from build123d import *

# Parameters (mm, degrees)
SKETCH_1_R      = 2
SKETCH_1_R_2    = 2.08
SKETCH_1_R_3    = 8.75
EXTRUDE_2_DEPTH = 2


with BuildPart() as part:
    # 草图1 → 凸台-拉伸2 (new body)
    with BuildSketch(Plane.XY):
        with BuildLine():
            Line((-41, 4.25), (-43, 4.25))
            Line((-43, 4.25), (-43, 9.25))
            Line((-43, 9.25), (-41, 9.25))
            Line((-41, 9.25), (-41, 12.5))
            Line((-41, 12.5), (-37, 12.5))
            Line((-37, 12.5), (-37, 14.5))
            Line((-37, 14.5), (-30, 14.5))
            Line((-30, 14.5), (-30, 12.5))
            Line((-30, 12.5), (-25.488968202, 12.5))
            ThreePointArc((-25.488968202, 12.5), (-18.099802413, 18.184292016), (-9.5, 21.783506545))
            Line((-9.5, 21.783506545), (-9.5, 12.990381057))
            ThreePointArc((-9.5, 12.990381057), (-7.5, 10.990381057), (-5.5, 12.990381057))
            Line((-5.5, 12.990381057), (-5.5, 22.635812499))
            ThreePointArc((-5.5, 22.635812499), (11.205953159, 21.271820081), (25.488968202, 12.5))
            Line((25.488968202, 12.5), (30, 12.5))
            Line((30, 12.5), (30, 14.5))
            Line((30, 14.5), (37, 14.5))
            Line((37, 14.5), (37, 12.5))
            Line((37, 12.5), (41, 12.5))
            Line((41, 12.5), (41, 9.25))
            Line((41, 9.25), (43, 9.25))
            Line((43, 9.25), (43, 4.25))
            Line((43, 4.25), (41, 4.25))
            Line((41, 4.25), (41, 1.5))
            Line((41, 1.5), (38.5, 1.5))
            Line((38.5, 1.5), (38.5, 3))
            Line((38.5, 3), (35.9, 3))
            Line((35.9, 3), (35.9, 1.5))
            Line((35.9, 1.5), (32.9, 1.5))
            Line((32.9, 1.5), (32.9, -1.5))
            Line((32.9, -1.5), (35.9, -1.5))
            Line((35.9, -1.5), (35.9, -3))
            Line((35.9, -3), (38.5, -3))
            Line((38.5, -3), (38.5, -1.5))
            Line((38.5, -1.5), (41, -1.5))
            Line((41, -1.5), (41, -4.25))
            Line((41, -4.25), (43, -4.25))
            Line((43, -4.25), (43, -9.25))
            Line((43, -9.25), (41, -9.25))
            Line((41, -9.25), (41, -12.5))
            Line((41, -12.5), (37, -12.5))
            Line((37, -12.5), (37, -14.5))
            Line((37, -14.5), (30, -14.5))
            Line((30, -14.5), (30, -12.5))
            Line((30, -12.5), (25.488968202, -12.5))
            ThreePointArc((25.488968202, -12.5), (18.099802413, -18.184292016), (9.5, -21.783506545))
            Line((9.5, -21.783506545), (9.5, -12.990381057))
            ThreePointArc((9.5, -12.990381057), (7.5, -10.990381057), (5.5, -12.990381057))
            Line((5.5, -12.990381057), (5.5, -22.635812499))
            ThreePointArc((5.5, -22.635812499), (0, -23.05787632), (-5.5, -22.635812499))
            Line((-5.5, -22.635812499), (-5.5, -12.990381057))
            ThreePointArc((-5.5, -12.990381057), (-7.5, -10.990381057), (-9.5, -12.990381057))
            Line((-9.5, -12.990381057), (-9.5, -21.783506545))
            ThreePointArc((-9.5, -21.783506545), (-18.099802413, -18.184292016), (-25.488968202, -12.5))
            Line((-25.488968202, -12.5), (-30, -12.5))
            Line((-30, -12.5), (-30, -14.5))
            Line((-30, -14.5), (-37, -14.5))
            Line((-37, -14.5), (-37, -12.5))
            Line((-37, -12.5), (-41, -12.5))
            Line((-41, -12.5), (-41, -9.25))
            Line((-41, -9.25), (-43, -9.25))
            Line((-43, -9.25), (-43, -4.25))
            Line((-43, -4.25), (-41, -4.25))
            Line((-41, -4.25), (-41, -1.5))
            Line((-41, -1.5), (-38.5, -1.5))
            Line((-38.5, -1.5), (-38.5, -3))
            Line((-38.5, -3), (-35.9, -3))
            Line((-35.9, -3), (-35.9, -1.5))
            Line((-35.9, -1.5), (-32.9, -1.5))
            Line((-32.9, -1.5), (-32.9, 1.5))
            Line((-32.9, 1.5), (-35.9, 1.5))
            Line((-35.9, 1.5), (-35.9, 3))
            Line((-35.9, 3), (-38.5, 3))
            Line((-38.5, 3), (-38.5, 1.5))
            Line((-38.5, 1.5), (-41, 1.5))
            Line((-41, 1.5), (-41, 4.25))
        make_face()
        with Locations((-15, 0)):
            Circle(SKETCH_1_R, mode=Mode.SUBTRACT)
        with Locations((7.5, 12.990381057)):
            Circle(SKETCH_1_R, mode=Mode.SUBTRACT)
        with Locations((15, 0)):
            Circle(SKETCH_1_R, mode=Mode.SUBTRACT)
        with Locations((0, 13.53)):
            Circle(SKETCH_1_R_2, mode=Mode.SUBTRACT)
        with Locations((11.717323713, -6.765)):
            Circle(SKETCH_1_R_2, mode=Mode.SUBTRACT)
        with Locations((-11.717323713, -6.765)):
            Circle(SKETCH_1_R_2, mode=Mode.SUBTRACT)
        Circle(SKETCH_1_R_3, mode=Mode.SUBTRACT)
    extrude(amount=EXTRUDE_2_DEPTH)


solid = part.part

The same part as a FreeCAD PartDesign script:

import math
import FreeCAD as App
import Part
import Sketcher

V = App.Vector

doc = App.newDocument("Part")
body = doc.addObject("PartDesign::Body", "Body")

# Sketch on XY plane
sketch1 = body.newObject("Sketcher::SketchObject", "Sketch")
sketch1.AttachmentSupport = (doc.getObject("XY_Plane"), [""])
sketch1.MapMode = "FlatFace"
sketch1.addGeometry([
    Part.LineSegment(V(-43, 4.2, 0), V(-41, 4.2, 0)),  # 0
    Part.LineSegment(V(-41, 4.2, 0), V(-41, 1.5, 0)),  # 1
    Part.LineSegment(V(-41, 1.5, 0), V(-38.5, 1.5, 0)),  # 2
    Part.LineSegment(V(-38.5, 1.5, 0), V(-38.5, 3, 0)),  # 3
    Part.LineSegment(V(-38.5, 3, 0), V(-35.9, 3, 0)),  # 4
    Part.LineSegment(V(-35.9, 3, 0), V(-35.9, 1.5, 0)),  # 5
    Part.LineSegment(V(-35.9, 1.5, 0), V(-32.9, 1.5, 0)),  # 6
    Part.LineSegment(V(-32.9, 1.5, 0), V(-32.9, -1.5, 0)),  # 7
    Part.LineSegment(V(-32.9, -1.5, 0), V(-35.9, -1.5, 0)),  # 8
    Part.LineSegment(V(-35.9, -1.5, 0), V(-35.9, -3, 0)),  # 9
    Part.LineSegment(V(-35.9, -3, 0), V(-38.5, -3, 0)),  # 10
    Part.LineSegment(V(-38.5, -3, 0), V(-38.5, -1.5, 0)),  # 11
    Part.LineSegment(V(-38.5, -1.5, 0), V(-41, -1.5, 0)),  # 12
    Part.LineSegment(V(-41, -1.5, 0), V(-41, -4.2, 0)),  # 13
    Part.LineSegment(V(-41, -4.2, 0), V(-43, -4.2, 0)),  # 14
    Part.LineSegment(V(-43, -4.2, 0), V(-43, -9.2, 0)),  # 15
    Part.LineSegment(V(-43, -9.2, 0), V(-41, -9.2, 0)),  # 16
    Part.LineSegment(V(-41, -9.2, 0), V(-41, -12.5, 0)),  # 17
    Part.LineSegment(V(-41, -12.5, 0), V(-37, -12.5, 0)),  # 18
    Part.LineSegment(V(-37, -12.5, 0), V(-37, -14.5, 0)),  # 19
    Part.LineSegment(V(-37, -14.5, 0), V(-30, -14.5, 0)),  # 20
    Part.LineSegment(V(-30, -14.5, 0), V(-30, -12.5, 0)),  # 21
    Part.LineSegment(V(-30, -12.5, 0), V(-25.5, -12.5, 0)),  # 22
    Part.ArcOfCircle(Part.Circle(V(0, 13, 0), V(0, 0, 1), 36), math.radians(-135), math.radians(-105)),  # 23
    Part.LineSegment(V(-9.5, -21.8, 0), V(-9.5, -13, 0)),  # 24
    Part.ArcOfCircle(Part.Circle(V(-7.5, -13, 0), V(0, 0, 1), 2), math.radians(0), math.radians(180)),  # 25
    Part.LineSegment(V(-5.5, -13, 0), V(-5.5, -22.6, 0)),  # 26
    Part.ArcOfCircle(Part.Circle(V(0, 13, 0), V(0, 0, 1), 36), math.radians(-98.78), math.radians(-81.22)),  # 27
    Part.LineSegment(V(5.5, -22.6, 0), V(5.5, -13, 0)),  # 28
    Part.ArcOfCircle(Part.Circle(V(7.5, -13, 0), V(0, 0, 1), 2), math.radians(0), math.radians(180)),  # 29
    Part.LineSegment(V(9.5, -13, 0), V(9.5, -21.8, 0)),  # 30
    Part.ArcOfCircle(Part.Circle(V(0, 13, 0), V(0, 0, 1), 36), math.radians(-75), math.radians(-45)),  # 31
    Part.LineSegment(V(25.5, -12.5, 0), V(30, -12.5, 0)),  # 32
    Part.LineSegment(V(30, -12.5, 0), V(30, -14.5, 0)),  # 33
    Part.LineSegment(V(30, -14.5, 0), V(37, -14.5, 0)),  # 34
    Part.LineSegment(V(37, -14.5, 0), V(37, -12.5, 0)),  # 35
    Part.LineSegment(V(37, -12.5, 0), V(41, -12.5, 0)),  # 36
    Part.LineSegment(V(41, -12.5, 0), V(41, -9.2, 0)),  # 37
    Part.LineSegment(V(41, -9.2, 0), V(43, -9.2, 0)),  # 38
    Part.LineSegment(V(43, -9.2, 0), V(43, -4.2, 0)),  # 39
    Part.LineSegment(V(43, -4.2, 0), V(41, -4.2, 0)),  # 40
    Part.LineSegment(V(41, -4.2, 0), V(41, -1.5, 0)),  # 41
    Part.LineSegment(V(41, -1.5, 0), V(38.5, -1.5, 0)),  # 42
    Part.LineSegment(V(38.5, -1.5, 0), V(38.5, -3, 0)),  # 43
    Part.LineSegment(V(38.5, -3, 0), V(35.9, -3, 0)),  # 44
    Part.LineSegment(V(35.9, -3, 0), V(35.9, -1.5, 0)),  # 45
    Part.LineSegment(V(35.9, -1.5, 0), V(32.9, -1.5, 0)),  # 46
    Part.LineSegment(V(32.9, -1.5, 0), V(32.9, 1.5, 0)),  # 47
    Part.LineSegment(V(32.9, 1.5, 0), V(35.9, 1.5, 0)),  # 48
    Part.LineSegment(V(35.9, 1.5, 0), V(35.9, 3, 0)),  # 49
    Part.LineSegment(V(35.9, 3, 0), V(38.5, 3, 0)),  # 50
    Part.LineSegment(V(38.5, 3, 0), V(38.5, 1.5, 0)),  # 51
    Part.LineSegment(V(38.5, 1.5, 0), V(41, 1.5, 0)),  # 52
    Part.LineSegment(V(41, 1.5, 0), V(41, 4.2, 0)),  # 53
    Part.LineSegment(V(41, 4.2, 0), V(43, 4.2, 0)),  # 54
    Part.LineSegment(V(43, 4.2, 0), V(43, 9.2, 0)),  # 55
    Part.LineSegment(V(43, 9.2, 0), V(41, 9.2, 0)),  # 56
    Part.LineSegment(V(41, 9.2, 0), V(41, 12.5, 0)),  # 57
    Part.LineSegment(V(41, 12.5, 0), V(37, 12.5, 0)),  # 58
    Part.LineSegment(V(37, 12.5, 0), V(37, 14.5, 0)),  # 59
    Part.LineSegment(V(37, 14.5, 0), V(30, 14.5, 0)),  # 60
    Part.LineSegment(V(30, 14.5, 0), V(30, 12.5, 0)),  # 61
    Part.LineSegment(V(30, 12.5, 0), V(25.5, 12.5, 0)),  # 62
    Part.ArcOfCircle(Part.Circle(V(0, -13, 0), V(0, 0, 1), 36), math.radians(45), math.radians(99)),  # 63
    Part.LineSegment(V(-5.5, 22.6, 0), V(-5.5, 13, 0)),  # 64
    Part.ArcOfCircle(Part.Circle(V(-7.5, 13, 0), V(0, 0, 1), 2), math.radians(180), math.radians(360)),  # 65
    Part.LineSegment(V(-9.5, 13, 0), V(-9.5, 21.8, 0)),  # 66
    Part.ArcOfCircle(Part.Circle(V(0, -13, 0), V(0, 0, 1), 36), math.radians(105), math.radians(135)),  # 67
    Part.LineSegment(V(-25.5, 12.5, 0), V(-30, 12.5, 0)),  # 68
    Part.LineSegment(V(-30, 12.5, 0), V(-30, 14.5, 0)),  # 69
    Part.LineSegment(V(-30, 14.5, 0), V(-37, 14.5, 0)),  # 70
    Part.LineSegment(V(-37, 14.5, 0), V(-37, 12.5, 0)),  # 71
    Part.LineSegment(V(-37, 12.5, 0), V(-41, 12.5, 0)),  # 72
    Part.LineSegment(V(-41, 12.5, 0), V(-41, 9.2, 0)),  # 73
    Part.LineSegment(V(-41, 9.2, 0), V(-43, 9.2, 0)),  # 74
    Part.LineSegment(V(-43, 9.2, 0), V(-43, 4.2, 0)),  # 75
    Part.Circle(V(11.7, -6.8, 0), V(0, 0, 1), 2.1),  # 76
    Part.Circle(V(15, 0, 0), V(0, 0, 1), 2),  # 77
    Part.Circle(V(-11.7, -6.8, 0), V(0, 0, 1), 2.1),  # 78
    Part.Circle(V(0, 0, 0), V(0, 0, 1), 8.8),  # 79
    Part.Circle(V(-15, 0, 0), V(0, 0, 1), 2),  # 80
    Part.Circle(V(7.5, 13, 0), V(0, 0, 1), 2),  # 81
    Part.Circle(V(0, 13.5, 0), V(0, 0, 1), 2.1),  # 82
], False)
sketch1.addConstraint([
    Sketcher.Constraint("Coincident", 0, 2, 1, 1),
    Sketcher.Constraint("Coincident", 1, 2, 2, 1),
    Sketcher.Constraint("Coincident", 2, 2, 3, 1),
    Sketcher.Constraint("Coincident", 3, 2, 4, 1),
    Sketcher.Constraint("Coincident", 4, 2, 5, 1),
    Sketcher.Constraint("Coincident", 5, 2, 6, 1),
    Sketcher.Constraint("Coincident", 6, 2, 7, 1),
    Sketcher.Constraint("Coincident", 7, 2, 8, 1),
    Sketcher.Constraint("Coincident", 8, 2, 9, 1),
    Sketcher.Constraint("Coincident", 9, 2, 10, 1),
    Sketcher.Constraint("Coincident", 10, 2, 11, 1),
    Sketcher.Constraint("Coincident", 11, 2, 12, 1),
    Sketcher.Constraint("Coincident", 12, 2, 13, 1),
    Sketcher.Constraint("Coincident", 13, 2, 14, 1),
    Sketcher.Constraint("Coincident", 14, 2, 15, 1),
    Sketcher.Constraint("Coincident", 15, 2, 16, 1),
    Sketcher.Constraint("Coincident", 16, 2, 17, 1),
    Sketcher.Constraint("Coincident", 17, 2, 18, 1),
    Sketcher.Constraint("Coincident", 18, 2, 19, 1),
    Sketcher.Constraint("Coincident", 19, 2, 20, 1),
    Sketcher.Constraint("Coincident", 20, 2, 21, 1),
    Sketcher.Constraint("Coincident", 21, 2, 22, 1),
    Sketcher.Constraint("Coincident", 22, 2, 23, 1),
    Sketcher.Constraint("Coincident", 23, 2, 24, 1),
    Sketcher.Constraint("Tangent", 24, 2, 25, 2),
    Sketcher.Constraint("Tangent", 25, 1, 26, 1),
    Sketcher.Constraint("Coincident", 26, 2, 27, 1),
    Sketcher.Constraint("Coincident", 27, 2, 28, 1),
    Sketcher.Constraint("Tangent", 28, 2, 29, 2),
    Sketcher.Constraint("Tangent", 29, 1, 30, 1),
    Sketcher.Constraint("Coincident", 30, 2, 31, 1),
    Sketcher.Constraint("Coincident", 31, 2, 32, 1),
    Sketcher.Constraint("Coincident", 32, 2, 33, 1),
    Sketcher.Constraint("Coincident", 33, 2, 34, 1),
    Sketcher.Constraint("Coincident", 34, 2, 35, 1),
    Sketcher.Constraint("Coincident", 35, 2, 36, 1),
    Sketcher.Constraint("Coincident", 36, 2, 37, 1),
    Sketcher.Constraint("Coincident", 37, 2, 38, 1),
    Sketcher.Constraint("Coincident", 38, 2, 39, 1),
    Sketcher.Constraint("Coincident", 39, 2, 40, 1),
    Sketcher.Constraint("Coincident", 40, 2, 41, 1),
    Sketcher.Constraint("Coincident", 41, 2, 42, 1),
    Sketcher.Constraint("Coincident", 42, 2, 43, 1),
    Sketcher.Constraint("Coincident", 43, 2, 44, 1),
    Sketcher.Constraint("Coincident", 44, 2, 45, 1),
    Sketcher.Constraint("Coincident", 45, 2, 46, 1),
    Sketcher.Constraint("Coincident", 46, 2, 47, 1),
    Sketcher.Constraint("Coincident", 47, 2, 48, 1),
    Sketcher.Constraint("Coincident", 48, 2, 49, 1),
    Sketcher.Constraint("Coincident", 49, 2, 50, 1),
    Sketcher.Constraint("Coincident", 50, 2, 51, 1),
    Sketcher.Constraint("Coincident", 51, 2, 52, 1),
    Sketcher.Constraint("Coincident", 52, 2, 53, 1),
    Sketcher.Constraint("Coincident", 53, 2, 54, 1),
    Sketcher.Constraint("Coincident", 54, 2, 55, 1),
    Sketcher.Constraint("Coincident", 55, 2, 56, 1),
    Sketcher.Constraint("Coincident", 56, 2, 57, 1),
    Sketcher.Constraint("Coincident", 57, 2, 58, 1),
    Sketcher.Constraint("Coincident", 58, 2, 59, 1),
    Sketcher.Constraint("Coincident", 59, 2, 60, 1),
    Sketcher.Constraint("Coincident", 60, 2, 61, 1),
    Sketcher.Constraint("Coincident", 61, 2, 62, 1),
    Sketcher.Constraint("Coincident", 62, 2, 63, 1),
    Sketcher.Constraint("Coincident", 63, 2, 64, 1),
    Sketcher.Constraint("Tangent", 64, 2, 65, 2),
    Sketcher.Constraint("Tangent", 65, 1, 66, 1),
    Sketcher.Constraint("Coincident", 66, 2, 67, 1),
    Sketcher.Constraint("Coincident", 67, 2, 68, 1),
    Sketcher.Constraint("Coincident", 68, 2, 69, 1),
    Sketcher.Constraint("Coincident", 69, 2, 70, 1),
    Sketcher.Constraint("Coincident", 70, 2, 71, 1),
    Sketcher.Constraint("Coincident", 71, 2, 72, 1),
    Sketcher.Constraint("Coincident", 72, 2, 73, 1),
    Sketcher.Constraint("Coincident", 73, 2, 74, 1),
    Sketcher.Constraint("Coincident", 74, 2, 75, 1),
    Sketcher.Constraint("Coincident", 75, 2, 0, 1),
    Sketcher.Constraint("Horizontal", 0),
    Sketcher.Constraint("Vertical", 1),
    Sketcher.Constraint("Horizontal", 2),
    Sketcher.Constraint("Vertical", 3),
    Sketcher.Constraint("Horizontal", 4),
    Sketcher.Constraint("Vertical", 5),
    Sketcher.Constraint("Horizontal", 6),
    Sketcher.Constraint("Vertical", 7),
    Sketcher.Constraint("Horizontal", 8),
    Sketcher.Constraint("Vertical", 9),
    Sketcher.Constraint("Horizontal", 10),
    Sketcher.Constraint("Vertical", 11),
    Sketcher.Constraint("Horizontal", 12),
    Sketcher.Constraint("Vertical", 13),
    Sketcher.Constraint("Horizontal", 14),
    Sketcher.Constraint("Vertical", 15),
    Sketcher.Constraint("Horizontal", 16),
    Sketcher.Constraint("Vertical", 17),
    Sketcher.Constraint("Horizontal", 18),
    Sketcher.Constraint("Vertical", 19),
    Sketcher.Constraint("Horizontal", 20),
    Sketcher.Constraint("Vertical", 21),
    Sketcher.Constraint("Horizontal", 22),
    Sketcher.Constraint("Vertical", 24),
    Sketcher.Constraint("Vertical", 26),
    Sketcher.Constraint("Vertical", 28),
    Sketcher.Constraint("Vertical", 30),
    Sketcher.Constraint("Horizontal", 32),
    Sketcher.Constraint("Vertical", 33),
    Sketcher.Constraint("Horizontal", 34),
    Sketcher.Constraint("Vertical", 35),
    Sketcher.Constraint("Horizontal", 36),
    Sketcher.Constraint("Vertical", 37),
    Sketcher.Constraint("Horizontal", 38),
    Sketcher.Constraint("Vertical", 39),
    Sketcher.Constraint("Horizontal", 40),
    Sketcher.Constraint("Vertical", 41),
    Sketcher.Constraint("Horizontal", 42),
    Sketcher.Constraint("Vertical", 43),
    Sketcher.Constraint("Horizontal", 44),
    Sketcher.Constraint("Vertical", 45),
    Sketcher.Constraint("Horizontal", 46),
    Sketcher.Constraint("Vertical", 47),
    Sketcher.Constraint("Horizontal", 48),
    Sketcher.Constraint("Vertical", 49),
    Sketcher.Constraint("Horizontal", 50),
    Sketcher.Constraint("Vertical", 51),
    Sketcher.Constraint("Horizontal", 52),
    Sketcher.Constraint("Vertical", 53),
    Sketcher.Constraint("Horizontal", 54),
    Sketcher.Constraint("Vertical", 55),
    Sketcher.Constraint("Horizontal", 56),
    Sketcher.Constraint("Vertical", 57),
    Sketcher.Constraint("Horizontal", 58),
    Sketcher.Constraint("Vertical", 59),
    Sketcher.Constraint("Horizontal", 60),
    Sketcher.Constraint("Vertical", 61),
    Sketcher.Constraint("Horizontal", 62),
    Sketcher.Constraint("Vertical", 64),
    Sketcher.Constraint("Vertical", 66),
    Sketcher.Constraint("Horizontal", 68),
    Sketcher.Constraint("Vertical", 69),
    Sketcher.Constraint("Horizontal", 70),
    Sketcher.Constraint("Vertical", 71),
    Sketcher.Constraint("Horizontal", 72),
    Sketcher.Constraint("Vertical", 73),
    Sketcher.Constraint("Horizontal", 74),
    Sketcher.Constraint("Vertical", 75),
    Sketcher.Constraint("Coincident", 79, 3, -1, 1),
    Sketcher.Constraint("Coincident", 27, 3, 23, 3),
    Sketcher.Constraint("Coincident", 31, 3, 23, 3),
    Sketcher.Constraint("Coincident", 67, 3, 63, 3),
    Sketcher.Constraint("Equal", 23, 27),
    Sketcher.Constraint("Equal", 25, 29),
    Sketcher.Constraint("Equal", 27, 31),
    Sketcher.Constraint("Equal", 31, 63),
    Sketcher.Constraint("Equal", 29, 65),
    Sketcher.Constraint("Equal", 63, 67),
    Sketcher.Constraint("Equal", 65, 77),
    Sketcher.Constraint("Equal", 76, 78),
    Sketcher.Constraint("Equal", 77, 80),
    Sketcher.Constraint("Equal", 80, 81),
    Sketcher.Constraint("Equal", 78, 82),
    Sketcher.Constraint("Symmetric", 23, 3, 63, 3, -1, 1),
    Sketcher.Constraint("Symmetric", 29, 3, 65, 3, -1, 1),
    Sketcher.Constraint("Symmetric", 77, 3, 80, 3, -1, 1),
    Sketcher.Constraint("Symmetric", 25, 3, 81, 3, -1, 1),
    Sketcher.Constraint("Symmetric", 0, 2, 40, 2, -1, 1),
    Sketcher.Constraint("Symmetric", 2, 2, 42, 2, -1, 1),
    Sketcher.Constraint("Symmetric", 4, 2, 44, 2, -1, 1),
    Sketcher.Constraint("Symmetric", 6, 2, 46, 2, -1, 1),
    Sketcher.Constraint("Symmetric", 8, 2, 48, 2, -1, 1),
    Sketcher.Constraint("Symmetric", 10, 2, 50, 2, -1, 1),
    Sketcher.Constraint("Symmetric", 12, 2, 52, 2, -1, 1),
    Sketcher.Constraint("Symmetric", 14, 2, 54, 2, -1, 1),
    Sketcher.Constraint("Symmetric", 16, 2, 56, 2, -1, 1),
    Sketcher.Constraint("Symmetric", 18, 2, 58, 2, -1, 1),
    Sketcher.Constraint("Symmetric", 20, 2, 60, 2, -1, 1),
    Sketcher.Constraint("Symmetric", 32, 2, 68, 2, -1, 1),
    Sketcher.Constraint("Symmetric", 34, 2, 70, 2, -1, 1),
    Sketcher.Constraint("Symmetric", 36, 2, 72, 2, -1, 1),
    Sketcher.Constraint("Symmetric", 38, 2, 74, 2, -1, 1),
    Sketcher.Constraint("Symmetric", 25, 3, 29, 3, -2),
    Sketcher.Constraint("Symmetric", 76, 3, 78, 3, -2),
    Sketcher.Constraint("Symmetric", 22, 2, 31, 2, -2),
    Sketcher.Constraint("Symmetric", 20, 2, 33, 2, -2),
    Sketcher.Constraint("Symmetric", 18, 2, 35, 2, -2),
    Sketcher.Constraint("Symmetric", 16, 2, 37, 2, -2),
    Sketcher.Constraint("Symmetric", 14, 2, 39, 2, -2),
    Sketcher.Constraint("Symmetric", 12, 2, 41, 2, -2),
    Sketcher.Constraint("Symmetric", 10, 2, 43, 2, -2),
    Sketcher.Constraint("Symmetric", 8, 2, 45, 2, -2),
    Sketcher.Constraint("PointOnObject", 77, 3, -1),
    Sketcher.Constraint("PointOnObject", 82, 3, -2),
    Sketcher.Constraint("Horizontal", 2, 2, 5, 2),
    Sketcher.Constraint("Horizontal", 18, 2, 21, 2),
    Sketcher.Constraint("Horizontal", 58, 2, 61, 2),
    Sketcher.Constraint("Vertical", 13, 2, 16, 2),
    Sketcher.Constraint("Equal", 48, 7),
    Sketcher.Constraint("Equal", 74, 19),
    Sketcher.Constraint("Diameter", 77, 4.0),
    Sketcher.Constraint("Diameter", 79, 17.5),
    Sketcher.Constraint("Diameter", 76, 4.16),
    Sketcher.Constraint("DistanceX", 0, 1, 0, 2, 2.0),
    Sketcher.Constraint("DistanceX", 6, 1, 6, 2, 3.0),
    Sketcher.Constraint("DistanceX", 18, 1, 18, 2, 4.0),
    Sketcher.Constraint("DistanceX", 20, 1, 20, 2, 7.0),
    Sketcher.Constraint("DistanceY", 15, 2, 15, 1, 5.0),
    Sketcher.Constraint("DistanceX", 2, 1, 2, 2, 2.5),
    Sketcher.Constraint("DistanceX", 4, 1, 4, 2, 2.6),
    Sketcher.Constraint("DistanceY", 3, 1, 3, 2, 1.5),
    Sketcher.Constraint("DistanceX", -1, 1, 77, 3, 15.0),
    Sketcher.Constraint("DistanceX", 0, 2, -1, 1, 41.0),
    Sketcher.Constraint("DistanceY", 1, 2, 1, 1, 2.75),
    Sketcher.Constraint("DistanceY", 17, 2, 17, 1, 3.25),
    Sketcher.Constraint("DistanceX", 25, 3, -1, 1, 7.5),
    Sketcher.Constraint("DistanceY", -1, 1, 82, 3, 13.53),
    Sketcher.Constraint("DistanceY", 76, 3, -1, 1, 6.765),
    Sketcher.Constraint("Radius", 23, 36.046845),
    Sketcher.Constraint("DistanceX", 22, 1, 22, 2, 4.511032),
    Sketcher.Constraint("DistanceY", 26, 2, 26, 1, 9.645431),
    Sketcher.Constraint("DistanceX", -1, 1, 76, 3, 11.717324),
])
pad1 = body.newObject("PartDesign::Pad", "Pad")
pad1.Profile = sketch1
pad1.Length = 2

doc.recompute()
